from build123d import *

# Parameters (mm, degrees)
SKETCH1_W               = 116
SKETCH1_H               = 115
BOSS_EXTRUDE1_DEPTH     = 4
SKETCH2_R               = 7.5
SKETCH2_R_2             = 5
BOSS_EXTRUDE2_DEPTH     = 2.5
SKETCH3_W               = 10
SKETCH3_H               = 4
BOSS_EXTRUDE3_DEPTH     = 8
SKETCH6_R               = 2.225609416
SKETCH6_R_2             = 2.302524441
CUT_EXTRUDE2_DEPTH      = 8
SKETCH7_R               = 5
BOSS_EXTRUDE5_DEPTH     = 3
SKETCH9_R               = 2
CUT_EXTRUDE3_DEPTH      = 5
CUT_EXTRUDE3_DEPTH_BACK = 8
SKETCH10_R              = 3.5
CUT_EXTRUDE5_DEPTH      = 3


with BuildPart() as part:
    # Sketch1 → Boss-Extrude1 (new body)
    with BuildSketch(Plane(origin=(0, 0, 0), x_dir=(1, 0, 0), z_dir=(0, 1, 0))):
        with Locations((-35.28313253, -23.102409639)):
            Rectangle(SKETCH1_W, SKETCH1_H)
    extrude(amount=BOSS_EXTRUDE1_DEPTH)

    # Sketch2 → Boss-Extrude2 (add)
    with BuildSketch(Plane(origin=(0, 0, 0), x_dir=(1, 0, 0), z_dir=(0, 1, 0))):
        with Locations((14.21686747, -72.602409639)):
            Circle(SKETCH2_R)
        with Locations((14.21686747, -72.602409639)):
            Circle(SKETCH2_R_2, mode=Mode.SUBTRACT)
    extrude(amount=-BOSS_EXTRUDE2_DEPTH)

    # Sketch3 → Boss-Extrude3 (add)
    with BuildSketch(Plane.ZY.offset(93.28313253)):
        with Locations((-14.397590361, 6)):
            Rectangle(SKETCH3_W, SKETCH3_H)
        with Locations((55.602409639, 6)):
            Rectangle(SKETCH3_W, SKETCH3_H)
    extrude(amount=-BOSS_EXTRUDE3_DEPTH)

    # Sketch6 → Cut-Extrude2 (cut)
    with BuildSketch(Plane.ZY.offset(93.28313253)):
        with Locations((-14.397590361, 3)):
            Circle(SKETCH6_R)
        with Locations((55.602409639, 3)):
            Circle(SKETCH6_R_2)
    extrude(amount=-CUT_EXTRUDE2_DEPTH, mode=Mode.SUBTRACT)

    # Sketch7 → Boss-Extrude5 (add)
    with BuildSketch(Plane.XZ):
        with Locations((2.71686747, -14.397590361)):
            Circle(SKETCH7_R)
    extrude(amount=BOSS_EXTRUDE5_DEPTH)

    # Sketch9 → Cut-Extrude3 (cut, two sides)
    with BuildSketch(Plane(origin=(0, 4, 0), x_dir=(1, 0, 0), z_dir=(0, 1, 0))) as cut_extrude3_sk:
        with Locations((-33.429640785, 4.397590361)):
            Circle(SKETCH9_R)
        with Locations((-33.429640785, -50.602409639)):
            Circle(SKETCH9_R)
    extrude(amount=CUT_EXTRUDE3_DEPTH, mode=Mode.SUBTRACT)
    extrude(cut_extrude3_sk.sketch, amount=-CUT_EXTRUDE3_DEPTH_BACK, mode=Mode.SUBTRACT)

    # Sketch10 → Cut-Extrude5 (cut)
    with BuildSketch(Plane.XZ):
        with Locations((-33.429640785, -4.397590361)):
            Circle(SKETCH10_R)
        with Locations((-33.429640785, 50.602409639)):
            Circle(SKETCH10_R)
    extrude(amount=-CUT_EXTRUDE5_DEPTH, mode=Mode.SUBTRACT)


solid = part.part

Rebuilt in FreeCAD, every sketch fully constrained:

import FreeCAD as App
import Part
import Sketcher
from FreeCAD import Vector
Q = App.Units.Quantity

doc = App.newDocument("Part")
params = doc.addObject("Spreadsheet::Sheet", "Params")
for row, (alias, value) in enumerate([
    ("sketch1_width", "116 mm"),
    ("sketch1_height", "115 mm"),
    ("pad1_length", "4 mm"),
    ("sketch2_diameter", "15 mm"),
    ("sketch2_diameter2", "10 mm"),
    ("pad2_length", "2.5 mm"),
    ("sketch3_width", "4 mm"),
    ("sketch3_height", "10 mm"),
    ("pad3_length", "8 mm"),
    ("pocket1_length", "8 mm"),
    ("sketch5_diameter", "10 mm"),
    ("pad4_length", "3 mm"),
    ("sketch6_diameter", "4 mm"),
    ("sketch7_diameter", "7 mm"),
    ("pocket3_length", "3 mm"),
], start=1):
    params.set(f"A{row}", alias)
    params.set(f"B{row}", "=" + value)
    params.setAlias(f"B{row}", alias)

body = doc.addObject("PartDesign::Body", "Body")

# Sketch on XZ plane
sketch1 = body.newObject("Sketcher::SketchObject", "Sketch")
sketch1.AttachmentSupport = (doc.getObject("XZ_Plane"), [""])
sketch1.MapMode = "FlatFace"
sketch1.addGeometry(Part.LineSegment(Vector(-93, -34, 0), Vector(-93, 81, 0)), False)
sketch1.addGeometry(Part.LineSegment(Vector(-93, 81, 0), Vector(23, 81, 0)), False)
sketch1.addGeometry(Part.LineSegment(Vector(23, 81, 0), Vector(23, -34, 0)), False)
sketch1.addGeometry(Part.LineSegment(Vector(23, -34, 0), Vector(-93, -34, 0)), False)
sketch1.addConstraint(Sketcher.Constraint("Coincident", 0, 2, 1, 1))
sketch1.addConstraint(Sketcher.Constraint("Coincident", 1, 2, 2, 1))
sketch1.addConstraint(Sketcher.Constraint("Coincident", 2, 2, 3, 1))
sketch1.addConstraint(Sketcher.Constraint("Coincident", 3, 2, 0, 1))
sketch1.addConstraint(Sketcher.Constraint("Vertical", 0))
sketch1.addConstraint(Sketcher.Constraint("Horizontal", 1))
sketch1.addConstraint(Sketcher.Constraint("Vertical", 2))
sketch1.addConstraint(Sketcher.Constraint("Horizontal", 3))
sketch1.addConstraint(Sketcher.Constraint("DistanceX", 1, 1, 1, 2, Q("116 mm")))
sketch1.addConstraint(Sketcher.Constraint("DistanceY", 0, 1, 0, 2, Q("115 mm")))
sketch1.addConstraint(Sketcher.Constraint("DistanceY", -1, 1, 0, 2, Q("80.60241 mm")))
sketch1.addConstraint(Sketcher.Constraint("DistanceX", 0, 2, -1, 1, Q("93.283133 mm")))
sketch1.setExpression("Constraints[8]", "Params.sketch1_width")
sketch1.setExpression("Constraints[9]", "Params.sketch1_height")
pad1 = body.newObject("PartDesign::Pad", "Pad")
pad1.Profile = sketch1
pad1.setExpression("Length", "Params.pad1_length")
pad1.Reversed = True

# Sketch on XZ plane
sketch2 = body.newObject("Sketcher::SketchObject", "Sketch001")
sketch2.AttachmentSupport = (doc.getObject("XZ_Plane"), [""])
sketch2.MapMode = "FlatFace"
sketch2.addGeometry(Part.Circle(Vector(14, 73, 0), Vector(0, 0, 1), 8), False)
sketch2.addGeometry(Part.Circle(Vector(14, 73, 0), Vector(0, 0, 1), 5), False)
sketch2.addConstraint(Sketcher.Constraint("Coincident", 1, 3, 0, 3))
sketch2.addConstraint(Sketcher.Constraint("Diameter", 0, Q("15 mm")))
sketch2.addConstraint(Sketcher.Constraint("Diameter", 1, Q("10 mm")))
sketch2.addConstraint(Sketcher.Constraint("DistanceY", -1, 1, 0, 3, Q("72.60241 mm")))
sketch2.addConstraint(Sketcher.Constraint("DistanceX", -1, 1, 0, 3, Q("14.216867 mm")))
sketch2.setExpression("Constraints[1]", "Params.sketch2_diameter")
sketch2.setExpression("Constraints[2]", "Params.sketch2_diameter2")
pad2 = body.newObject("PartDesign::Pad", "Pad001")
pad2.Profile = sketch2
pad2.setExpression("Length", "Params.pad2_length")

# Sketch on YZ plane
sketch3 = body.newObject("Sketcher::SketchObject", "Sketch002")
sketch3.AttachmentSupport = (doc.getObject("YZ_Plane"), [""])
sketch3.MapMode = "FlatFace"
sketch3.AttachmentOffset = App.Placement(Vector(0, 0, -93.283133), App.Rotation())
sketch3.addGeometry(Part.LineSegment(Vector(8, -19.4, 0), Vector(4, -19.4, 0)), False)
sketch3.addGeometry(Part.LineSegment(Vector(4, -19.4, 0), Vector(4, -9.4, 0)), False)
sketch3.addGeometry(Part.LineSegment(Vector(4, -9.4, 0), Vector(8, -9.4, 0)), False)
sketch3.addGeometry(Part.LineSegment(Vector(8, -9.4, 0), Vector(8, -19.4, 0)), False)
sketch3.addGeometry(Part.LineSegment(Vector(8, 50.6, 0), Vector(4, 50.6, 0)), False)
sketch3.addGeometry(Part.LineSegment(Vector(4, 50.6, 0), Vector(4, 60.6, 0)), False)
sketch3.addGeometry(Part.LineSegment(Vector(4, 60.6, 0), Vector(8, 60.6, 0)), False)
sketch3.addGeometry(Part.LineSegment(Vector(8, 60.6, 0), Vector(8, 50.6, 0)), False)
sketch3.addConstraint(Sketcher.Constraint("Coincident", 0, 2, 1, 1))
sketch3.addConstraint(Sketcher.Constraint("Coincident", 1, 2, 2, 1))
sketch3.addConstraint(Sketcher.Constraint("Coincident", 2, 2, 3, 1))
sketch3.addConstraint(Sketcher.Constraint("Coincident", 3, 2, 0, 1))
sketch3.addConstraint(Sketcher.Constraint("Coincident", 4, 2, 5, 1))
sketch3.addConstraint(Sketcher.Constraint("Coincident", 5, 2, 6, 1))
sketch3.addConstraint(Sketcher.Constraint("Coincident", 6, 2, 7, 1))
sketch3.addConstraint(Sketcher.Constraint("Coincident", 7, 2, 4, 1))
sketch3.addConstraint(Sketcher.Constraint("Horizontal", 0))
sketch3.addConstraint(Sketcher.Constraint("Vertical", 1))
sketch3.addConstraint(Sketcher.Constraint("Horizontal", 2))
sketch3.addConstraint(Sketcher.Constraint("Vertical", 3))
sketch3.addConstraint(Sketcher.Constraint("Horizontal", 4))
sketch3.addConstraint(Sketcher.Constraint("Vertical", 5))
sketch3.addConstraint(Sketcher.Constraint("Horizontal", 6))
sketch3.addConstraint(Sketcher.Constraint("Vertical", 7))
sketch3.addConstraint(Sketcher.Constraint("Vertical", 1, 2, 4, 2))
sketch3.addConstraint(Sketcher.Constraint("Vertical", 3, 2, 6, 2))
sketch3.addConstraint(Sketcher.Constraint("Equal", 3, 5))
sketch3.addConstraint(Sketcher.Constraint("DistanceX", 0, 2, 0, 1, Q("4 mm")))
sketch3.addConstraint(Sketcher.Constraint("DistanceY", 1, 1, 1, 2, Q("10 mm")))
sketch3.addConstraint(Sketcher.Constraint("DistanceX", -1, 1, 0, 2, Q("4 mm")))
sketch3.addConstraint(Sketcher.Constraint("DistanceY", 1, 2, 4, 2, Q("60 mm")))
sketch3.addConstraint(Sketcher.Constraint("DistanceY", 0, 2, -1, 1, Q("19.39759 mm")))
sketch3.setExpression("Constraints[19]", "Params.sketch3_width")
sketch3.setExpression("Constraints[20]", "Params.sketch3_height")
pad3 = body.newObject("PartDesign::Pad", "Pad002")
pad3.Profile = sketch3
pad3.setExpression("Length", "Params.pad3_length")

# Sketch on YZ plane
sketch4 = body.newObject("Sketcher::SketchObject", "Sketch003")
sketch4.AttachmentSupport = (doc.getObject("YZ_Plane"), [""])
sketch4.MapMode = "FlatFace"
sketch4.AttachmentOffset = App.Placement(Vector(0, 0, -93.283133), App.Rotation())
sketch4.addGeometry(Part.Circle(Vector(3, -14.4, 0), Vector(0, 0, 1), 2.2), False)
sketch4.addGeometry(Part.Circle(Vector(3, 55.6, 0), Vector(0, 0, 1), 2.3), False)
sketch4.addConstraint(Sketcher.Constraint("Vertical", 0, 3, 1, 3))
sketch4.addConstraint(Sketcher.Constraint("DistanceX", -1, 1, 0, 3, Q("3 mm")))
sketch4.addConstraint(Sketcher.Constraint("DistanceY", 0, 3, 1, 3, Q("70 mm")))
sketch4.addConstraint(Sketcher.Constraint("Diameter", 0, Q("4.451219 mm")))
sketch4.addConstraint(Sketcher.Constraint("Diameter", 1, Q("4.605049 mm")))
sketch4.addConstraint(Sketcher.Constraint("DistanceY", 0, 3, -1, 1, Q("14.39759 mm")))
pocket1 = body.newObject("PartDesign::Pocket", "Pocket")
pocket1.Profile = sketch4
pocket1.setExpression("Length", "Params.pocket1_length")
pocket1.Reversed = True

# Sketch on XZ plane
sketch5 = body.newObject("Sketcher::SketchObject", "Sketch004")
sketch5.AttachmentSupport = (doc.getObject("XZ_Plane"), [""])
sketch5.MapMode = "FlatFace"
sketch5.addGeometry(Part.Circle(Vector(3, -14, 0), Vector(0, 0, 1), 5), False)
sketch5.addConstraint(Sketcher.Constraint("Diameter", 0, Q("10 mm")))
sketch5.addConstraint(Sketcher.Constraint("DistanceY", 0, 3, -1, 1, Q("14.39759 mm")))
sketch5.addConstraint(Sketcher.Constraint("DistanceX", -1, 1, 0, 3, Q("2.716867 mm")))
sketch5.setExpression("Constraints[0]", "Params.sketch5_diameter")
pad4 = body.newObject("PartDesign::Pad", "Pad003")
pad4.Profile = sketch5
pad4.setExpression("Length", "Params.pad4_length")

# Sketch on XZ plane
sketch6 = body.newObject("Sketcher::SketchObject", "Sketch005")
sketch6.AttachmentSupport = (doc.getObject("XZ_Plane"), [""])
sketch6.MapMode = "FlatFace"
sketch6.AttachmentOffset = App.Placement(Vector(0, 0, -4), App.Rotation())
sketch6.addGeometry(Part.Circle(Vector(-33.4, -4.4, 0), Vector(0, 0, 1), 2), False)
sketch6.addGeometry(Part.Circle(Vector(-33.4, 50.6, 0), Vector(0, 0, 1), 2), False)
sketch6.addConstraint(Sketcher.Constraint("Equal", 0, 1))
sketch6.addConstraint(Sketcher.Constraint("Vertical", 0, 3, 1, 3))
sketch6.addConstraint(Sketcher.Constraint("Diameter", 0, Q("4 mm")))
sketch6.addConstraint(Sketcher.Constraint("DistanceY", 0, 3, 1, 3, Q("55 mm")))
sketch6.addConstraint(Sketcher.Constraint("DistanceX", 0, 3, -1, 1, Q("33.429641 mm")))
sketch6.addConstraint(Sketcher.Constraint("DistanceY", 0, 3, -1, 1, Q("4.39759 mm")))
sketch6.setExpression("Constraints[2]", "Params.sketch6_diameter")
pocket2 = body.newObject("PartDesign::Pocket", "Pocket001")
pocket2.Profile = sketch6
pocket2.Type = "ThroughAll"
pocket2.Midplane = True

# Sketch on XZ plane
sketch7 = body.newObject("Sketcher::SketchObject", "Sketch006")
sketch7.AttachmentSupport = (doc.getObject("XZ_Plane"), [""])
sketch7.MapMode = "FlatFace"
sketch7.addGeometry(Part.Circle(Vector(-33.4, -4.4, 0), Vector(0, 0, 1), 3.5), False)
sketch7.addGeometry(Part.Circle(Vector(-33.4, 50.6, 0), Vector(0, 0, 1), 3.5), False)
sketch7.addConstraint(Sketcher.Constraint("Equal", 0, 1))
sketch7.addConstraint(Sketcher.Constraint("Vertical", 0, 3, 1, 3))
sketch7.addConstraint(Sketcher.Constraint("Diameter", 0, Q("7 mm")))
sketch7.addConstraint(Sketcher.Constraint("DistanceY", 0, 3, 1, 3, Q("55 mm")))
sketch7.addConstraint(Sketcher.Constraint("DistanceX", 0, 3, -1, 1, Q("33.429641 mm")))
sketch7.addConstraint(Sketcher.Constraint("DistanceY", 0, 3, -1, 1, Q("4.39759 mm")))
sketch7.setExpression("Constraints[2]", "Params.sketch7_diameter")
pocket3 = body.newObject("PartDesign::Pocket", "Pocket002")
pocket3.Profile = sketch7
pocket3.setExpression("Length", "Params.pocket3_length")

doc.recompute()
